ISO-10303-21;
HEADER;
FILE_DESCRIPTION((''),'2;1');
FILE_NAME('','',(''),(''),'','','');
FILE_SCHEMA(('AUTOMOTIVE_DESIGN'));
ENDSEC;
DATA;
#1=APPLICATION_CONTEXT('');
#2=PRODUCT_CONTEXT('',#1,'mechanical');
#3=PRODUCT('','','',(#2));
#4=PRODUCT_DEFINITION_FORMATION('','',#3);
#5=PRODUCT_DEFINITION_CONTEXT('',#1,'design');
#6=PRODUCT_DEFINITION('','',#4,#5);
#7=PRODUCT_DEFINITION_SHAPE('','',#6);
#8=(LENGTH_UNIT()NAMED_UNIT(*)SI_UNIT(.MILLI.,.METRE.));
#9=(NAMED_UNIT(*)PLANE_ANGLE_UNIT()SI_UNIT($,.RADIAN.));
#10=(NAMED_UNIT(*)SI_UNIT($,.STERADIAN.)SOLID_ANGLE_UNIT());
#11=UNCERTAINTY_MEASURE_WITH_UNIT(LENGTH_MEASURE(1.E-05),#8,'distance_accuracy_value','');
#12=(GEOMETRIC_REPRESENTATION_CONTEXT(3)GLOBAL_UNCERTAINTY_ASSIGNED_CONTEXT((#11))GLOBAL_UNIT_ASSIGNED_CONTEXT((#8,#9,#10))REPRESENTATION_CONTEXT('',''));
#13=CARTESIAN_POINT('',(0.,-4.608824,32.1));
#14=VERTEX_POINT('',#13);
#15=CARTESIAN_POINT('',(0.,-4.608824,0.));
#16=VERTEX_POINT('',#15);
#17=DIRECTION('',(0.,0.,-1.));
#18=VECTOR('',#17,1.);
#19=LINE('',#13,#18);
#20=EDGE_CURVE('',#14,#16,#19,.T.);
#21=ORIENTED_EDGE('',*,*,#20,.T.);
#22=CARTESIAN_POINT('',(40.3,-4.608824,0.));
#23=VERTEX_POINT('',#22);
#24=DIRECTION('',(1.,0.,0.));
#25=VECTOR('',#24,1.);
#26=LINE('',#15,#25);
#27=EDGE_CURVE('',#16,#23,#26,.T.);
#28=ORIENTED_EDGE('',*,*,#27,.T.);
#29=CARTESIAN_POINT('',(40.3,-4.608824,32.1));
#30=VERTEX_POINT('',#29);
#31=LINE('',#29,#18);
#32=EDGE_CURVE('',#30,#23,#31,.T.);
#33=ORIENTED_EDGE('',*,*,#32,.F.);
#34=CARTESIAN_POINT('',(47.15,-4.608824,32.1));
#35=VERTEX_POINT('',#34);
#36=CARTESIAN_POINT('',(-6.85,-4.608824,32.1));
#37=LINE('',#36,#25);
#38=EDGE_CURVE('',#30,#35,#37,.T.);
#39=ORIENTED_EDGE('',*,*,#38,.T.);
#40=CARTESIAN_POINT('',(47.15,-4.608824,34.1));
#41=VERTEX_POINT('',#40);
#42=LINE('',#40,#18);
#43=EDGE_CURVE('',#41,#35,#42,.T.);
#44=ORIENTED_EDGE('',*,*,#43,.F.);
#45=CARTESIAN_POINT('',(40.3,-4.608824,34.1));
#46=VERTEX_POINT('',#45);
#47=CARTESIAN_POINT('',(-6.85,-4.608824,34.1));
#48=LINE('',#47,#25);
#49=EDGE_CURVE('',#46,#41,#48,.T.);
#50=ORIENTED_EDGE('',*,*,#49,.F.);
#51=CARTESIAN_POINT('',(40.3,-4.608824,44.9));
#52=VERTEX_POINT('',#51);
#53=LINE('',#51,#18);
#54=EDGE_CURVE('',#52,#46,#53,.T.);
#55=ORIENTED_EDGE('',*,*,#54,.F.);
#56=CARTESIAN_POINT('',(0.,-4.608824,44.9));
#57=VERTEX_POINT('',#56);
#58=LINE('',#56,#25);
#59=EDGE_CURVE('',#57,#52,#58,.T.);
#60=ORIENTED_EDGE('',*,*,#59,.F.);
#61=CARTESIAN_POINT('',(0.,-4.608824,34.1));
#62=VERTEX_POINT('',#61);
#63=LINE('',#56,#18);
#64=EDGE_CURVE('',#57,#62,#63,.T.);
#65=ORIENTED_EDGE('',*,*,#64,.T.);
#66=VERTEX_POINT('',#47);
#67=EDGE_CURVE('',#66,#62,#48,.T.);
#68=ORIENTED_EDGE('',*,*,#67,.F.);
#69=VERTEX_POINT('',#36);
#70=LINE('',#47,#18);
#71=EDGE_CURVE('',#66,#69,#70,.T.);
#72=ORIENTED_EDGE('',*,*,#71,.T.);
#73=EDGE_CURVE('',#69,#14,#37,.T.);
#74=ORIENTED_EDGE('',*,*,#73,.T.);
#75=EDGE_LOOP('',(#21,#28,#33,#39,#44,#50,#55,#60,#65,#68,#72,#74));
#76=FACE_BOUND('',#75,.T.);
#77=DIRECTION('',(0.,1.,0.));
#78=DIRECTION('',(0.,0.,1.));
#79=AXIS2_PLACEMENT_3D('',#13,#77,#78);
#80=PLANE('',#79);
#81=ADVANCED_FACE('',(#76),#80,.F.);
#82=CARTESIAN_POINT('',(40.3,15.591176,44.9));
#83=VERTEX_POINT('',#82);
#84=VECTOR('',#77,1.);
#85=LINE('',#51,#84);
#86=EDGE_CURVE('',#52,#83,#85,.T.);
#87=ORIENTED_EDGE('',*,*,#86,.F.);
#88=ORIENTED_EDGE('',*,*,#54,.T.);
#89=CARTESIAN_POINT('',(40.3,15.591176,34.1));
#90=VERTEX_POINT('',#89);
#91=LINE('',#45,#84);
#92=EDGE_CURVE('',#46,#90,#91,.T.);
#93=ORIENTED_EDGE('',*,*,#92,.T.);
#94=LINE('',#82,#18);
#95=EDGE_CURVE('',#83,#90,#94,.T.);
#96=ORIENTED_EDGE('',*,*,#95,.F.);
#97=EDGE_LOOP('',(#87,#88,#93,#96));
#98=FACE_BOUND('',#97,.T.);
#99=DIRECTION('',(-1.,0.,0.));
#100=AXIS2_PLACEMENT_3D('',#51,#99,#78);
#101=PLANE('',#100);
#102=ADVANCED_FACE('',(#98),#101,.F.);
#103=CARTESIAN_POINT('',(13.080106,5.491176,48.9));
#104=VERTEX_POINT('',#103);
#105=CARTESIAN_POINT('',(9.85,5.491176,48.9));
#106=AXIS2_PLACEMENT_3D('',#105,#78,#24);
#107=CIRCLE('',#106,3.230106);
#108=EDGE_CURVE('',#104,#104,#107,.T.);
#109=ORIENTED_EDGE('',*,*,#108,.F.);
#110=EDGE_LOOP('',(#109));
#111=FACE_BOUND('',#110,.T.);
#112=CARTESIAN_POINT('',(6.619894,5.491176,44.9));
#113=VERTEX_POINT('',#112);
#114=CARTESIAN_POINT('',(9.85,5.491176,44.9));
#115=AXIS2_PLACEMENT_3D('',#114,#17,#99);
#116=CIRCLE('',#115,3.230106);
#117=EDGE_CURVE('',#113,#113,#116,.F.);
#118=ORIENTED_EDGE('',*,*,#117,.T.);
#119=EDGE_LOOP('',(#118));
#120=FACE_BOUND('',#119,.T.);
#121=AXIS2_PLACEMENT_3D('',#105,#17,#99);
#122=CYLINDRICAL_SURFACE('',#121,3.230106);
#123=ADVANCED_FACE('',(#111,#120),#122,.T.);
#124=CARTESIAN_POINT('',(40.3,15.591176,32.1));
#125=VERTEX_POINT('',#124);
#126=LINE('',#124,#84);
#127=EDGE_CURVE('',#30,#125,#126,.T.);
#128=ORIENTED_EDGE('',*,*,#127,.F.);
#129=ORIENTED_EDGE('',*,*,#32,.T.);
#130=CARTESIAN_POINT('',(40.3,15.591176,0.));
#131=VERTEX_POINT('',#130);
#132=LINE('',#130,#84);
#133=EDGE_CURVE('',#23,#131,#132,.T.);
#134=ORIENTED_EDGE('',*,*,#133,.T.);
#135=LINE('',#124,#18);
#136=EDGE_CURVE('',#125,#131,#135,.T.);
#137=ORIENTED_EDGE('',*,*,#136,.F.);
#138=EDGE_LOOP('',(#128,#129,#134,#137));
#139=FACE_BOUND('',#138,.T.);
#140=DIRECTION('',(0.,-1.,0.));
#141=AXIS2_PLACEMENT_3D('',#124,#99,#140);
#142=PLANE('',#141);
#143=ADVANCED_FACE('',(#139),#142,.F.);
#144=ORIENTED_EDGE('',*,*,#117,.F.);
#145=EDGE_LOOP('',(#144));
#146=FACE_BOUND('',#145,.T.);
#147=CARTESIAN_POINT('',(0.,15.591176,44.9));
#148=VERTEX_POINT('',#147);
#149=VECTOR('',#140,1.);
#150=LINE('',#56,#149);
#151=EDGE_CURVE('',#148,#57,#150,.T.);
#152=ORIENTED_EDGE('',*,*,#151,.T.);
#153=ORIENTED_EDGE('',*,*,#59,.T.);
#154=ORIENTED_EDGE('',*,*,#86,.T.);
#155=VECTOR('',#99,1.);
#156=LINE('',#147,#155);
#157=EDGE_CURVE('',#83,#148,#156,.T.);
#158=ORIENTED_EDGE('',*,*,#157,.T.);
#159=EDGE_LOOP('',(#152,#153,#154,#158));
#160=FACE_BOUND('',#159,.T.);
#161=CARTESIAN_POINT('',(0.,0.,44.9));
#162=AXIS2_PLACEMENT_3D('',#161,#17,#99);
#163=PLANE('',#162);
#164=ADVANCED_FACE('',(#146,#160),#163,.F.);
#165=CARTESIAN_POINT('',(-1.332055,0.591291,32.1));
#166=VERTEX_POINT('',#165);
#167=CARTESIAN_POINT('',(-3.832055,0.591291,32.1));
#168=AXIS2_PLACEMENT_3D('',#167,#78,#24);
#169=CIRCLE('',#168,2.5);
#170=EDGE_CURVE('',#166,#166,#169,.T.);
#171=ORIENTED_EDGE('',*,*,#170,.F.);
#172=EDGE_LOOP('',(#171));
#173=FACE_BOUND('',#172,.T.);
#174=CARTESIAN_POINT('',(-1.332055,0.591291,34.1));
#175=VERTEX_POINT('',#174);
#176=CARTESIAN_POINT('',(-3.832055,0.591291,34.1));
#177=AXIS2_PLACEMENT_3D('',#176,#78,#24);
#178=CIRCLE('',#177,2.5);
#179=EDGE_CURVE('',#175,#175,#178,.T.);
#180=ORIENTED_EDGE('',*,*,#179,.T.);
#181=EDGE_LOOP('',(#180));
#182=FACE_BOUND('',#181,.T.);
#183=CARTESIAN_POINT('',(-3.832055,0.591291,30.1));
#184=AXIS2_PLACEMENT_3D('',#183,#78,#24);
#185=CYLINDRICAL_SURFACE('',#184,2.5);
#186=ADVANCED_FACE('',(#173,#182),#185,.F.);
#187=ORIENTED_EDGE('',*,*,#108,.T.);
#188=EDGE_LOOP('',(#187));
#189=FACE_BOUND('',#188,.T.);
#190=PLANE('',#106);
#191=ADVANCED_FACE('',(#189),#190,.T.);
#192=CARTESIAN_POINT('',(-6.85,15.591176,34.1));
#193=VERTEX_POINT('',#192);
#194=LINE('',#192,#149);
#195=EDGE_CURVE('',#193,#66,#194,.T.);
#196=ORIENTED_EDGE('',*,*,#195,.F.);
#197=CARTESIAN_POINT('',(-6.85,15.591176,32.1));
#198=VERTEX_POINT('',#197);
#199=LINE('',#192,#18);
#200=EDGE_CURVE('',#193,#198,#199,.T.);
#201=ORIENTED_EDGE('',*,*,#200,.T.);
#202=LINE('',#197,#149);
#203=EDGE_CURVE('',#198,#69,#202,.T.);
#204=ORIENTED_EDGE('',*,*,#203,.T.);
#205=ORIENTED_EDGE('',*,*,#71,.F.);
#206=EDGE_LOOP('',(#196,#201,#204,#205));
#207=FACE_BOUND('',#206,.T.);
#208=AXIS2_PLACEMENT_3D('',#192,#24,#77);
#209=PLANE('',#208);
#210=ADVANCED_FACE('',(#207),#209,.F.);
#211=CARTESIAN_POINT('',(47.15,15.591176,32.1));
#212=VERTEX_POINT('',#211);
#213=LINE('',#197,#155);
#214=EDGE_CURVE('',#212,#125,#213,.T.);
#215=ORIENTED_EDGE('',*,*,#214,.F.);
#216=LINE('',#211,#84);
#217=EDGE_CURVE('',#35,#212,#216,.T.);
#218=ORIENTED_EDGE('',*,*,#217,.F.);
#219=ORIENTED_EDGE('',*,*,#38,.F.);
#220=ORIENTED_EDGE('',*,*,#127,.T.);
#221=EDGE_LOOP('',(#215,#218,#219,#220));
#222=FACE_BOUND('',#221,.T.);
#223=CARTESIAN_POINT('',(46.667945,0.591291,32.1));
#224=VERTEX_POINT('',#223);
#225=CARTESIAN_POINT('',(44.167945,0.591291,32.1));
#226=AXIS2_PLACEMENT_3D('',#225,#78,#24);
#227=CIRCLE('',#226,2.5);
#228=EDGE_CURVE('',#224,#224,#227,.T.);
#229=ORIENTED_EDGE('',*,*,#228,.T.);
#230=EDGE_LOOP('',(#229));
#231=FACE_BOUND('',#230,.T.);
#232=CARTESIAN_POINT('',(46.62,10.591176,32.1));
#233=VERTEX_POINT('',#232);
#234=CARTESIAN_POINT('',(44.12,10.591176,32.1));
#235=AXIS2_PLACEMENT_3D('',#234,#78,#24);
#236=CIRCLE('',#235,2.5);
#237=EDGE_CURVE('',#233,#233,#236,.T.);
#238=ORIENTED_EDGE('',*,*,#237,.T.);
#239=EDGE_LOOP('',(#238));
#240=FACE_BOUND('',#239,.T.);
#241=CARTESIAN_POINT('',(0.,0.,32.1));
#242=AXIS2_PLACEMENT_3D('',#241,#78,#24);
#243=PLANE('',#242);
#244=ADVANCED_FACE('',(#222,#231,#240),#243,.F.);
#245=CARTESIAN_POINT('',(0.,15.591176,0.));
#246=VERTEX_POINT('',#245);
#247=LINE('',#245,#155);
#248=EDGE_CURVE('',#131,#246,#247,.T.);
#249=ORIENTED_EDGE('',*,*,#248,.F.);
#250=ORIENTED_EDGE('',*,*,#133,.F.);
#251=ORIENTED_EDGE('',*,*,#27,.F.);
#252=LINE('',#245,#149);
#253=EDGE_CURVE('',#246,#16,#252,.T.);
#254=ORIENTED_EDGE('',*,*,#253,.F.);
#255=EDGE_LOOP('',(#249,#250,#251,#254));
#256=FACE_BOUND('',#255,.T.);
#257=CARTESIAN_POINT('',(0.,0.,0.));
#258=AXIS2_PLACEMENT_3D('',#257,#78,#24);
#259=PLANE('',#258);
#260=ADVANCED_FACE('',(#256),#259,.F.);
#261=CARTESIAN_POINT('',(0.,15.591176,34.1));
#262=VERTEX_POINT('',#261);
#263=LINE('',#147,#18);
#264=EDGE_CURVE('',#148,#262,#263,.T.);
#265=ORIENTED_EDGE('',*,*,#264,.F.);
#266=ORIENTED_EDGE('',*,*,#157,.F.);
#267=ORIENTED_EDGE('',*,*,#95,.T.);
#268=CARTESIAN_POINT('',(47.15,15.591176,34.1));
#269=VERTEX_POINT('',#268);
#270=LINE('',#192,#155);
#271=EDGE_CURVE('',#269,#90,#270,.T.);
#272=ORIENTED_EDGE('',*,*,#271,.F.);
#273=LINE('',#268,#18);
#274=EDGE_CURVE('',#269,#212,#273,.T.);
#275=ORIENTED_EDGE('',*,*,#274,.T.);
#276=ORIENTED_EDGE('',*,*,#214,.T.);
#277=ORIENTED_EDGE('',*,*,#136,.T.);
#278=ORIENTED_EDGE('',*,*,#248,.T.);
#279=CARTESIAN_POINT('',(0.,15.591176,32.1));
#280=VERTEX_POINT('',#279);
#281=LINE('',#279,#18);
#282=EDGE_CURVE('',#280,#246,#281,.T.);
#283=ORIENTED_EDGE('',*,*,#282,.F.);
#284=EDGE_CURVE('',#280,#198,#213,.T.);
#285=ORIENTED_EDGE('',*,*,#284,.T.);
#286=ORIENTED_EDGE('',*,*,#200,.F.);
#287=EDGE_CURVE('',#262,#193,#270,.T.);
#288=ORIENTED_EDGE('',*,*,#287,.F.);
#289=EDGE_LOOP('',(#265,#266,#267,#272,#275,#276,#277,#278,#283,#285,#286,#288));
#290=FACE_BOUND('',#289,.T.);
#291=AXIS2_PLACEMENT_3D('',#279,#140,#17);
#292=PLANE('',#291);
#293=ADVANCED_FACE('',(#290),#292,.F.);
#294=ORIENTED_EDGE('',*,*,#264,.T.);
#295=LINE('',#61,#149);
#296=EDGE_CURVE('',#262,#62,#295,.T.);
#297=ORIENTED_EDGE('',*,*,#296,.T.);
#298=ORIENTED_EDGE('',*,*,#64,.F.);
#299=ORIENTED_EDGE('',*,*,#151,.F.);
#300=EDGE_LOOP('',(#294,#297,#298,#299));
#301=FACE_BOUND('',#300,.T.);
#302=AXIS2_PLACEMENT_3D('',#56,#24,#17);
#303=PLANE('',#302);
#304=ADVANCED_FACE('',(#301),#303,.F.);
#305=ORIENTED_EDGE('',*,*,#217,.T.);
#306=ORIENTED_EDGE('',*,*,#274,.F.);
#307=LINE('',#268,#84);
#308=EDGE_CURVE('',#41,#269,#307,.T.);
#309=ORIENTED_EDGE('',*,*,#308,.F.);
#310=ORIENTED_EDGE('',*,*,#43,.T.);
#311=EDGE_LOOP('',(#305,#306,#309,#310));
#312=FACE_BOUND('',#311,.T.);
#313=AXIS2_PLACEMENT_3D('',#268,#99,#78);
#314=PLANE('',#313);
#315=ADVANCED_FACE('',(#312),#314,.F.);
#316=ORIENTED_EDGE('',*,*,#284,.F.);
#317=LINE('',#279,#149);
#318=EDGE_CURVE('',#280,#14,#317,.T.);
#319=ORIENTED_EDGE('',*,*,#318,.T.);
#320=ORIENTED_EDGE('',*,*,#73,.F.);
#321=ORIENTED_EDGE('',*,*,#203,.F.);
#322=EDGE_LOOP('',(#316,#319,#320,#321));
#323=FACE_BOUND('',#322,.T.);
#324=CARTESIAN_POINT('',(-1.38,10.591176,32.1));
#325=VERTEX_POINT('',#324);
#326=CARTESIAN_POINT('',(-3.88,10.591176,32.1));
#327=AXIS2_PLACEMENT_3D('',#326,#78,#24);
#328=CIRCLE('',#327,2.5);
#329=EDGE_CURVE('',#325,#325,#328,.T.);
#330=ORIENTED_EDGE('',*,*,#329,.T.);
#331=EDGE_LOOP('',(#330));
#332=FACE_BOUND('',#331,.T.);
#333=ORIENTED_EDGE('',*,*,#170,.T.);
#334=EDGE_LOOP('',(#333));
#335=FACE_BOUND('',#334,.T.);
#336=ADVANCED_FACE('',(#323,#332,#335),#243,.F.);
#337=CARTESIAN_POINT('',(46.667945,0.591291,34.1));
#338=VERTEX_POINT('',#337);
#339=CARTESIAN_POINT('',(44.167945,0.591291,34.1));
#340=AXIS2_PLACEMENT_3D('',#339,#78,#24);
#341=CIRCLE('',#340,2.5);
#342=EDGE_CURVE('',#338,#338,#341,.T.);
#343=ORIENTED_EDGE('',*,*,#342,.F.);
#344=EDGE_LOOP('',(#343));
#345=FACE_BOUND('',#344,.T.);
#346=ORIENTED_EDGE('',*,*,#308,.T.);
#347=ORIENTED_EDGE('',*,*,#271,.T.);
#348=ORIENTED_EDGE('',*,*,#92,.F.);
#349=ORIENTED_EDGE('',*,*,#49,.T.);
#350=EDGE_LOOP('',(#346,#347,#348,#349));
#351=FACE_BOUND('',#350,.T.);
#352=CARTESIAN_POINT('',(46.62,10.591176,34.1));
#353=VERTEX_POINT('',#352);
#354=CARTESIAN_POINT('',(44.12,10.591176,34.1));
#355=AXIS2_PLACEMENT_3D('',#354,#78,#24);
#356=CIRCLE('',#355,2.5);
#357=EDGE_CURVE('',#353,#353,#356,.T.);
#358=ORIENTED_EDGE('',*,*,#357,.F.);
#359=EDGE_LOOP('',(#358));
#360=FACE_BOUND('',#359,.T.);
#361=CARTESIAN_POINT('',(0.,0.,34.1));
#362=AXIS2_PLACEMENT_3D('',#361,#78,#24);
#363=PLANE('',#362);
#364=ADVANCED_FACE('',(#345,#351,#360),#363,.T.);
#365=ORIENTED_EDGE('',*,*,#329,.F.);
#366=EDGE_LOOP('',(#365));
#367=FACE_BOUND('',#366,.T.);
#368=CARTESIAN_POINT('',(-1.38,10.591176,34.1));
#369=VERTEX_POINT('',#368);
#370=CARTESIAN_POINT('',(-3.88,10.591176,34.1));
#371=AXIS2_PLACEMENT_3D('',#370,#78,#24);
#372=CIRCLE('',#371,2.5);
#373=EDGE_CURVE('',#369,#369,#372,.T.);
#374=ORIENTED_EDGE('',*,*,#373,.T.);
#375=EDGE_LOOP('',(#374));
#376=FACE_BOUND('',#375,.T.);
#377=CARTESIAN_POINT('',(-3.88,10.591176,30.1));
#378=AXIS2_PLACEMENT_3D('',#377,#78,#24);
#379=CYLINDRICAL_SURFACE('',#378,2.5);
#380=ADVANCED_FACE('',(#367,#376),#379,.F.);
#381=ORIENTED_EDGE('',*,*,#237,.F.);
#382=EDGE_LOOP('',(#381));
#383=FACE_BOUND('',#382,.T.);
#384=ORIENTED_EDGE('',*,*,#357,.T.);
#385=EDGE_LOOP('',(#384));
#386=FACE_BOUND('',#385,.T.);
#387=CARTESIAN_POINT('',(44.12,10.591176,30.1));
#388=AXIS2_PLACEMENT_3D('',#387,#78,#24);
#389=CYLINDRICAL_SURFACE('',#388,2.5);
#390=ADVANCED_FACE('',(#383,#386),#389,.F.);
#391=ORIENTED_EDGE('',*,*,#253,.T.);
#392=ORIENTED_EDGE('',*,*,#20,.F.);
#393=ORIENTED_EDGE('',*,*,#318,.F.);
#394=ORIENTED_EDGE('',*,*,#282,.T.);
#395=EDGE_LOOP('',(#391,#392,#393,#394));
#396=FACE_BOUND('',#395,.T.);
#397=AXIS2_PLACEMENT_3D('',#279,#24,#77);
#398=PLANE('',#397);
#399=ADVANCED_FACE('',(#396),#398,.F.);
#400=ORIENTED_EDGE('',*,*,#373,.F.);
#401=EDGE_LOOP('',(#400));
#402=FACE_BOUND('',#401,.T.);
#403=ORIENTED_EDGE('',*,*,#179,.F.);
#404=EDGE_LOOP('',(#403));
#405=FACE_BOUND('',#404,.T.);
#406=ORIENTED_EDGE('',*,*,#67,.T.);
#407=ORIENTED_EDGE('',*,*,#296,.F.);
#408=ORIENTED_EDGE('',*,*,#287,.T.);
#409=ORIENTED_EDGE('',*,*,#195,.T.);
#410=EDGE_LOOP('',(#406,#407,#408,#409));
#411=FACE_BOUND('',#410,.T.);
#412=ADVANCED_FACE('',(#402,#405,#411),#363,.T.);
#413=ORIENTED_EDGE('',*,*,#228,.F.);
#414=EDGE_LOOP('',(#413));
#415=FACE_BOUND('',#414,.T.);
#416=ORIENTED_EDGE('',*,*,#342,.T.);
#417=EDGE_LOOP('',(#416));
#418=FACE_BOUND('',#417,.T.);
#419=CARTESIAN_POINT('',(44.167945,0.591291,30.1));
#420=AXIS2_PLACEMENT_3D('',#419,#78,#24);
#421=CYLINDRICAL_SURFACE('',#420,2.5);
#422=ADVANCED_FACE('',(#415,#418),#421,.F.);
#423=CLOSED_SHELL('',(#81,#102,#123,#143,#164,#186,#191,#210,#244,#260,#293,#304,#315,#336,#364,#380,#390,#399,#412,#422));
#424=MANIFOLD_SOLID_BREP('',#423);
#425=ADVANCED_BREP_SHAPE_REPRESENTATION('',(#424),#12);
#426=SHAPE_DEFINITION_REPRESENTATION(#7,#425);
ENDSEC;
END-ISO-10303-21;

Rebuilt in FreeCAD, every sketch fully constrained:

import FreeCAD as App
import Part
import Sketcher
Q = App.Units.Quantity


def add_polygon(sketch, points):
    """Adds a closed chain of lines whose ends are joined by coincident constraints."""
    first, n = sketch.GeometryCount, len(points)
    for a, b in zip(points, points[1:] + points[:1]):
        sketch.addGeometry(Part.LineSegment(App.Vector(*a, 0), App.Vector(*b, 0)), False)
    for i in range(n):
        sketch.addConstraint(Sketcher.Constraint("Coincident", first + i, 2, first + (i + 1) % n, 1))

doc = App.newDocument("Part")
params = doc.addObject("Spreadsheet::Sheet", "Params")
for row, (alias, value) in enumerate([
    ("sketch1_width", "40.3 mm"),
    ("sketch1_height", "20.2 mm"),
    ("pad1_length", "32.1 mm"),
    ("sketch2_width", "54 mm"),
    ("sketch2_height", "20.2 mm"),
    ("pad2_length", "2 mm"),
    ("sketch3_width", "40.3 mm"),
    ("sketch3_height", "20.2 mm"),
    ("pad3_length", "10.8 mm"),
    ("pad4_length", "4 mm"),
    ("sketch5_diameter", "5 mm"),
    ("pocket1_length", "4 mm"),
], start=1):
    params.set(f"A{row}", alias)
    params.set(f"B{row}", "=" + value)
    params.setAlias(f"B{row}", alias)

body = doc.addObject("PartDesign::Body", "Body")

sketch1 = body.newObject("Sketcher::SketchObject", "Sketch")
sketch1.AttachmentSupport = (doc.getObject("XY_Plane"), [""])
sketch1.MapMode = "FlatFace"
add_polygon(sketch1, [(0, 16), (0, -5), (40, -5), (40, 16)])
sketch1.addConstraint(Sketcher.Constraint("Vertical", 0))
sketch1.addConstraint(Sketcher.Constraint("Horizontal", 1))
sketch1.addConstraint(Sketcher.Constraint("Vertical", 2))
sketch1.addConstraint(Sketcher.Constraint("Horizontal", 3))
sketch1.addConstraint(Sketcher.Constraint("PointOnObject", 0, 2, -2))
sketch1.addConstraint(Sketcher.Constraint("DistanceX", 1, 1, 1, 2, Q("40.3 mm")))
sketch1.addConstraint(Sketcher.Constraint("DistanceY", 0, 2, 0, 1, Q("20.2 mm")))
sketch1.addConstraint(Sketcher.Constraint("DistanceY", 0, 2, -1, 1, Q("4.608824 mm")))
sketch1.setExpression("Constraints[9]", "Params.sketch1_width")
sketch1.setExpression("Constraints[10]", "Params.sketch1_height")
pad1 = body.newObject("PartDesign::Pad", "Pad")
pad1.Profile = sketch1
pad1.setExpression("Length", "Params.pad1_length")

sketch2 = body.newObject("Sketcher::SketchObject", "Sketch001")
sketch2.AttachmentSupport = (doc.getObject("XY_Plane"), [""])
sketch2.MapMode = "FlatFace"
sketch2.AttachmentOffset = App.Placement(App.Vector(0, 0, 32.1), App.Rotation())
add_polygon(sketch2, [(-7, 16), (-7, -5), (47, -5), (47, 16)])
sketch2.addConstraint(Sketcher.Constraint("Vertical", 0))
sketch2.addConstraint(Sketcher.Constraint("Horizontal", 1))
sketch2.addConstraint(Sketcher.Constraint("Vertical", 2))
sketch2.addConstraint(Sketcher.Constraint("Horizontal", 3))
sketch2.addConstraint(Sketcher.Constraint("DistanceX", 1, 1, 1, 2, Q("54 mm")))
sketch2.addConstraint(Sketcher.Constraint("DistanceY", 0, 2, 0, 1, Q("20.2 mm")))
sketch2.addConstraint(Sketcher.Constraint("DistanceX", 0, 2, -1, 1, Q("6.85 mm")))
sketch2.addConstraint(Sketcher.Constraint("DistanceY", 0, 2, -1, 1, Q("4.608824 mm")))
sketch2.setExpression("Constraints[8]", "Params.sketch2_width")
sketch2.setExpression("Constraints[9]", "Params.sketch2_height")
pad2 = body.newObject("PartDesign::Pad", "Pad001")
pad2.Profile = sketch2
pad2.setExpression("Length", "Params.pad2_length")

sketch3 = body.newObject("Sketcher::SketchObject", "Sketch002")
sketch3.AttachmentSupport = (doc.getObject("XY_Plane"), [""])
sketch3.MapMode = "FlatFace"
sketch3.AttachmentOffset = App.Placement(App.Vector(0, 0, 34.1), App.Rotation())
add_polygon(sketch3, [(0, 16), (0, -5), (40, -5), (40, 16)])
sketch3.addConstraint(Sketcher.Constraint("Vertical", 0))
sketch3.addConstraint(Sketcher.Constraint("Horizontal", 1))
sketch3.addConstraint(Sketcher.Constraint("Vertical", 2))
sketch3.addConstraint(Sketcher.Constraint("Horizontal", 3))
sketch3.addConstraint(Sketcher.Constraint("PointOnObject", 0, 2, -2))
sketch3.addConstraint(Sketcher.Constraint("DistanceX", 1, 1, 1, 2, Q("40.3 mm")))
sketch3.addConstraint(Sketcher.Constraint("DistanceY", 0, 2, 0, 1, Q("20.2 mm")))
sketch3.addConstraint(Sketcher.Constraint("DistanceY", 0, 2, -1, 1, Q("4.608824 mm")))
sketch3.setExpression("Constraints[9]", "Params.sketch3_width")
sketch3.setExpression("Constraints[10]", "Params.sketch3_height")
pad3 = body.newObject("PartDesign::Pad", "Pad002")
pad3.Profile = sketch3
pad3.setExpression("Length", "Params.pad3_length")

sketch4 = body.newObject("Sketcher::SketchObject", "Sketch003")
sketch4.AttachmentSupport = (doc.getObject("XY_Plane"), [""])
sketch4.MapMode = "FlatFace"
sketch4.AttachmentOffset = App.Placement(App.Vector(0, 0, 44.9), App.Rotation())
sketch4.addGeometry(Part.Circle(App.Vector(9.8, 5.5, 0), App.Vector(0, 0, 1), 3.2), False)
sketch4.addConstraint(Sketcher.Constraint("DistanceX", -1, 1, 0, 3, Q("9.85 mm")))
sketch4.addConstraint(Sketcher.Constraint("Diameter", 0, Q("6.460213 mm")))
sketch4.addConstraint(Sketcher.Constraint("DistanceY", -1, 1, 0, 3, Q("5.491176 mm")))
pad4 = body.newObject("PartDesign::Pad", "Pad003")
pad4.Profile = sketch4
pad4.setExpression("Length", "Params.pad4_length")

sketch5 = body.newObject("Sketcher::SketchObject", "Sketch004")
sketch5.AttachmentSupport = (doc.getObject("XY_Plane"), [""])
sketch5.MapMode = "FlatFace"
sketch5.AttachmentOffset = App.Placement(App.Vector(0, 0, 34.1), App.Rotation())
sketch5.addGeometry(Part.Circle(App.Vector(-3.9, 10.6, 0), App.Vector(0, 0, 1), 2.5), False)
sketch5.addGeometry(Part.Circle(App.Vector(-3.8, 0.6, 0), App.Vector(0, 0, 1), 2.5), False)
sketch5.addGeometry(Part.Circle(App.Vector(44.1, 10.6, 0), App.Vector(0, 0, 1), 2.5), False)
sketch5.addGeometry(Part.Circle(App.Vector(44.2, 0.6, 0), App.Vector(0, 0, 1), 2.5), False)
sketch5.addConstraint(Sketcher.Constraint("Equal", 0, 1))
sketch5.addConstraint(Sketcher.Constraint("Equal", 1, 2))
sketch5.addConstraint(Sketcher.Constraint("Equal", 2, 3))
sketch5.addConstraint(Sketcher.Constraint("Horizontal", 0, 3, 2, 3))
sketch5.addConstraint(Sketcher.Constraint("Horizontal", 1, 3, 3, 3))
sketch5.addConstraint(Sketcher.Constraint("Diameter", 0, Q("5 mm")))
sketch5.addConstraint(Sketcher.Constraint("DistanceX", 0, 3, 2, 3, Q("48 mm")))
sketch5.addConstraint(Sketcher.Constraint("DistanceX", 1, 3, 3, 3, Q("48 mm")))
sketch5.addConstraint(Sketcher.Constraint("DistanceX", 0, 3, -1, 1, Q("3.88 mm")))
sketch5.addConstraint(Sketcher.Constraint("DistanceY", -1, 1, 1, 3, Q("0.591291 mm")))
sketch5.addConstraint(Sketcher.Constraint("DistanceY", -1, 1, 0, 3, Q("10.591176 mm")))
sketch5.addConstraint(Sketcher.Constraint("DistanceX", 1, 3, -1, 1, Q("3.832055 mm")))
sketch5.setExpression("Constraints[5]", "Params.sketch5_diameter")
pocket1 = body.newObject("PartDesign::Pocket", "Pocket")
pocket1.Profile = sketch5
pocket1.setExpression("Length", "Params.pocket1_length")

doc.recompute()
